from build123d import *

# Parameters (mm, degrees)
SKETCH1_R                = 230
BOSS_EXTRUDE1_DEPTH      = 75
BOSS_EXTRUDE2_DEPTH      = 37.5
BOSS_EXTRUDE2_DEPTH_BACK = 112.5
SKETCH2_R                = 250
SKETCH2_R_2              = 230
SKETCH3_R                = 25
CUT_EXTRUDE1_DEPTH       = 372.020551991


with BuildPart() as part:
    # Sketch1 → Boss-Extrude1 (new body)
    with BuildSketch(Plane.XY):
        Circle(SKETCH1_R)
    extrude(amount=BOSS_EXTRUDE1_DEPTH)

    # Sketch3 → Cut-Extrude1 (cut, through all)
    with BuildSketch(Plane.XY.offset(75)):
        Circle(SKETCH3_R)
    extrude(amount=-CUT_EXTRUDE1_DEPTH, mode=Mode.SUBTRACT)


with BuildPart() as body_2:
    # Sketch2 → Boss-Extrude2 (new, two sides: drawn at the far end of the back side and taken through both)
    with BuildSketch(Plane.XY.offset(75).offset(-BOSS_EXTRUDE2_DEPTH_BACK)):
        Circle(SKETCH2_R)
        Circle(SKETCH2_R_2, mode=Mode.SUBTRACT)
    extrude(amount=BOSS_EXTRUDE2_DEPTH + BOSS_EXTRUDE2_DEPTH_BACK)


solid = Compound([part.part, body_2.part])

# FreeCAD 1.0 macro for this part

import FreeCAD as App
import Part
import Sketcher

V = App.Vector
Q = App.Units.Quantity

doc = App.newDocument("Part")
body = doc.addObject("PartDesign::Body", "Body")

sketch1 = body.newObject("Sketcher::SketchObject", "Sketch")
sketch1.AttachmentSupport = (doc.getObject("XY_Plane"), [""])
sketch1.MapMode = "FlatFace"
sketch1.addGeometry(Part.Circle(V(0, 0, 0), V(0, 0, 1), 230), False)
sketch1.addConstraint(Sketcher.Constraint("Coincident", 0, 3, -1, 1))
sketch1.addConstraint(Sketcher.Constraint("Diameter", 0, Q("460 mm")))
pad1 = body.newObject("PartDesign::Pad", "Pad")
pad1.Profile = sketch1
pad1.Length = 75

sketch2 = body.newObject("Sketcher::SketchObject", "Sketch001")
sketch2.AttachmentSupport = (doc.getObject("XY_Plane"), [""])
sketch2.MapMode = "FlatFace"
sketch2.AttachmentOffset = App.Placement(V(0, 0, 75), App.Rotation())
sketch2.addGeometry(Part.Circle(V(0, 0, 0), V(0, 0, 1), 25), False)
sketch2.addConstraint(Sketcher.Constraint("Coincident", 0, 3, -1, 1))
sketch2.addConstraint(Sketcher.Constraint("Diameter", 0, Q("50 mm")))
pocket1 = body.newObject("PartDesign::Pocket", "Pocket")
pocket1.Profile = sketch2
pocket1.Type = "ThroughAll"
body2 = doc.addObject("PartDesign::Body", "Body001")

sketch3 = body2.newObject("Sketcher::SketchObject", "Sketch002")
sketch3.AttachmentSupport = (doc.getObject("XY_Plane001"), [""])
sketch3.MapMode = "FlatFace"
sketch3.AttachmentOffset = App.Placement(V(0, 0, 75), App.Rotation())
sketch3.addGeometry(Part.Circle(V(0, 0, 0), V(0, 0, 1), 250), False)
sketch3.addGeometry(Part.Circle(V(0, 0, 0), V(0, 0, 1), 230), False)
sketch3.addConstraint(Sketcher.Constraint("Coincident", 0, 3, -1, 1))
sketch3.addConstraint(Sketcher.Constraint("Coincident", 1, 3, -1, 1))
sketch3.addConstraint(Sketcher.Constraint("Diameter", 0, Q("500 mm")))
sketch3.addConstraint(Sketcher.Constraint("Diameter", 1, Q("460 mm")))
pad2 = body2.newObject("PartDesign::Pad", "Pad001")
pad2.Profile = sketch3
pad2.Type = "TwoLengths"
pad2.Length = 37.5
pad2.Length2 = 112.5

doc.recompute()
